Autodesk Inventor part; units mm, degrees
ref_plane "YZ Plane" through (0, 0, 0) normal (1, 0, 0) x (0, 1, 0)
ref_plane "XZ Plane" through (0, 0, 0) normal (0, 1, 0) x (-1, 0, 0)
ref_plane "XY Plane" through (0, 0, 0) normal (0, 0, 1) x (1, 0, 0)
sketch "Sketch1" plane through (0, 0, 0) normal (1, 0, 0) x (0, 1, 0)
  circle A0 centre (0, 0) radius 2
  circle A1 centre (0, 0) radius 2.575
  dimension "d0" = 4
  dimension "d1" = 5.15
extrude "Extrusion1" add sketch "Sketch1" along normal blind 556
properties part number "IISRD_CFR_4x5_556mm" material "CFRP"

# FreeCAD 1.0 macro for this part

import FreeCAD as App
import Part
import Sketcher

V = App.Vector

doc = App.newDocument("Part")
body = doc.addObject("PartDesign::Body", "Body")

# Sketch on YZ plane
sketch1 = body.newObject("Sketcher::SketchObject", "Sketch")
sketch1.AttachmentSupport = (doc.getObject("YZ_Plane"), [""])
sketch1.MapMode = "FlatFace"
sketch1.addGeometry([
    Part.Circle(V(0, 0, 0), V(0, 0, 1), 2.6),
    Part.Circle(V(0, 0, 0), V(0, 0, 1), 2),
], False)
sketch1.addConstraint([
    Sketcher.Constraint("Coincident", 0, 3, -1, 1),
    Sketcher.Constraint("Coincident", 1, 3, -1, 1),
    Sketcher.Constraint("Diameter", 1, 4.0),
    Sketcher.Constraint("Diameter", 0, 5.15),
])
pad1 = body.newObject("PartDesign::Pad", "Pad")
pad1.Profile = sketch1
pad1.Length = 556

doc.recompute()
